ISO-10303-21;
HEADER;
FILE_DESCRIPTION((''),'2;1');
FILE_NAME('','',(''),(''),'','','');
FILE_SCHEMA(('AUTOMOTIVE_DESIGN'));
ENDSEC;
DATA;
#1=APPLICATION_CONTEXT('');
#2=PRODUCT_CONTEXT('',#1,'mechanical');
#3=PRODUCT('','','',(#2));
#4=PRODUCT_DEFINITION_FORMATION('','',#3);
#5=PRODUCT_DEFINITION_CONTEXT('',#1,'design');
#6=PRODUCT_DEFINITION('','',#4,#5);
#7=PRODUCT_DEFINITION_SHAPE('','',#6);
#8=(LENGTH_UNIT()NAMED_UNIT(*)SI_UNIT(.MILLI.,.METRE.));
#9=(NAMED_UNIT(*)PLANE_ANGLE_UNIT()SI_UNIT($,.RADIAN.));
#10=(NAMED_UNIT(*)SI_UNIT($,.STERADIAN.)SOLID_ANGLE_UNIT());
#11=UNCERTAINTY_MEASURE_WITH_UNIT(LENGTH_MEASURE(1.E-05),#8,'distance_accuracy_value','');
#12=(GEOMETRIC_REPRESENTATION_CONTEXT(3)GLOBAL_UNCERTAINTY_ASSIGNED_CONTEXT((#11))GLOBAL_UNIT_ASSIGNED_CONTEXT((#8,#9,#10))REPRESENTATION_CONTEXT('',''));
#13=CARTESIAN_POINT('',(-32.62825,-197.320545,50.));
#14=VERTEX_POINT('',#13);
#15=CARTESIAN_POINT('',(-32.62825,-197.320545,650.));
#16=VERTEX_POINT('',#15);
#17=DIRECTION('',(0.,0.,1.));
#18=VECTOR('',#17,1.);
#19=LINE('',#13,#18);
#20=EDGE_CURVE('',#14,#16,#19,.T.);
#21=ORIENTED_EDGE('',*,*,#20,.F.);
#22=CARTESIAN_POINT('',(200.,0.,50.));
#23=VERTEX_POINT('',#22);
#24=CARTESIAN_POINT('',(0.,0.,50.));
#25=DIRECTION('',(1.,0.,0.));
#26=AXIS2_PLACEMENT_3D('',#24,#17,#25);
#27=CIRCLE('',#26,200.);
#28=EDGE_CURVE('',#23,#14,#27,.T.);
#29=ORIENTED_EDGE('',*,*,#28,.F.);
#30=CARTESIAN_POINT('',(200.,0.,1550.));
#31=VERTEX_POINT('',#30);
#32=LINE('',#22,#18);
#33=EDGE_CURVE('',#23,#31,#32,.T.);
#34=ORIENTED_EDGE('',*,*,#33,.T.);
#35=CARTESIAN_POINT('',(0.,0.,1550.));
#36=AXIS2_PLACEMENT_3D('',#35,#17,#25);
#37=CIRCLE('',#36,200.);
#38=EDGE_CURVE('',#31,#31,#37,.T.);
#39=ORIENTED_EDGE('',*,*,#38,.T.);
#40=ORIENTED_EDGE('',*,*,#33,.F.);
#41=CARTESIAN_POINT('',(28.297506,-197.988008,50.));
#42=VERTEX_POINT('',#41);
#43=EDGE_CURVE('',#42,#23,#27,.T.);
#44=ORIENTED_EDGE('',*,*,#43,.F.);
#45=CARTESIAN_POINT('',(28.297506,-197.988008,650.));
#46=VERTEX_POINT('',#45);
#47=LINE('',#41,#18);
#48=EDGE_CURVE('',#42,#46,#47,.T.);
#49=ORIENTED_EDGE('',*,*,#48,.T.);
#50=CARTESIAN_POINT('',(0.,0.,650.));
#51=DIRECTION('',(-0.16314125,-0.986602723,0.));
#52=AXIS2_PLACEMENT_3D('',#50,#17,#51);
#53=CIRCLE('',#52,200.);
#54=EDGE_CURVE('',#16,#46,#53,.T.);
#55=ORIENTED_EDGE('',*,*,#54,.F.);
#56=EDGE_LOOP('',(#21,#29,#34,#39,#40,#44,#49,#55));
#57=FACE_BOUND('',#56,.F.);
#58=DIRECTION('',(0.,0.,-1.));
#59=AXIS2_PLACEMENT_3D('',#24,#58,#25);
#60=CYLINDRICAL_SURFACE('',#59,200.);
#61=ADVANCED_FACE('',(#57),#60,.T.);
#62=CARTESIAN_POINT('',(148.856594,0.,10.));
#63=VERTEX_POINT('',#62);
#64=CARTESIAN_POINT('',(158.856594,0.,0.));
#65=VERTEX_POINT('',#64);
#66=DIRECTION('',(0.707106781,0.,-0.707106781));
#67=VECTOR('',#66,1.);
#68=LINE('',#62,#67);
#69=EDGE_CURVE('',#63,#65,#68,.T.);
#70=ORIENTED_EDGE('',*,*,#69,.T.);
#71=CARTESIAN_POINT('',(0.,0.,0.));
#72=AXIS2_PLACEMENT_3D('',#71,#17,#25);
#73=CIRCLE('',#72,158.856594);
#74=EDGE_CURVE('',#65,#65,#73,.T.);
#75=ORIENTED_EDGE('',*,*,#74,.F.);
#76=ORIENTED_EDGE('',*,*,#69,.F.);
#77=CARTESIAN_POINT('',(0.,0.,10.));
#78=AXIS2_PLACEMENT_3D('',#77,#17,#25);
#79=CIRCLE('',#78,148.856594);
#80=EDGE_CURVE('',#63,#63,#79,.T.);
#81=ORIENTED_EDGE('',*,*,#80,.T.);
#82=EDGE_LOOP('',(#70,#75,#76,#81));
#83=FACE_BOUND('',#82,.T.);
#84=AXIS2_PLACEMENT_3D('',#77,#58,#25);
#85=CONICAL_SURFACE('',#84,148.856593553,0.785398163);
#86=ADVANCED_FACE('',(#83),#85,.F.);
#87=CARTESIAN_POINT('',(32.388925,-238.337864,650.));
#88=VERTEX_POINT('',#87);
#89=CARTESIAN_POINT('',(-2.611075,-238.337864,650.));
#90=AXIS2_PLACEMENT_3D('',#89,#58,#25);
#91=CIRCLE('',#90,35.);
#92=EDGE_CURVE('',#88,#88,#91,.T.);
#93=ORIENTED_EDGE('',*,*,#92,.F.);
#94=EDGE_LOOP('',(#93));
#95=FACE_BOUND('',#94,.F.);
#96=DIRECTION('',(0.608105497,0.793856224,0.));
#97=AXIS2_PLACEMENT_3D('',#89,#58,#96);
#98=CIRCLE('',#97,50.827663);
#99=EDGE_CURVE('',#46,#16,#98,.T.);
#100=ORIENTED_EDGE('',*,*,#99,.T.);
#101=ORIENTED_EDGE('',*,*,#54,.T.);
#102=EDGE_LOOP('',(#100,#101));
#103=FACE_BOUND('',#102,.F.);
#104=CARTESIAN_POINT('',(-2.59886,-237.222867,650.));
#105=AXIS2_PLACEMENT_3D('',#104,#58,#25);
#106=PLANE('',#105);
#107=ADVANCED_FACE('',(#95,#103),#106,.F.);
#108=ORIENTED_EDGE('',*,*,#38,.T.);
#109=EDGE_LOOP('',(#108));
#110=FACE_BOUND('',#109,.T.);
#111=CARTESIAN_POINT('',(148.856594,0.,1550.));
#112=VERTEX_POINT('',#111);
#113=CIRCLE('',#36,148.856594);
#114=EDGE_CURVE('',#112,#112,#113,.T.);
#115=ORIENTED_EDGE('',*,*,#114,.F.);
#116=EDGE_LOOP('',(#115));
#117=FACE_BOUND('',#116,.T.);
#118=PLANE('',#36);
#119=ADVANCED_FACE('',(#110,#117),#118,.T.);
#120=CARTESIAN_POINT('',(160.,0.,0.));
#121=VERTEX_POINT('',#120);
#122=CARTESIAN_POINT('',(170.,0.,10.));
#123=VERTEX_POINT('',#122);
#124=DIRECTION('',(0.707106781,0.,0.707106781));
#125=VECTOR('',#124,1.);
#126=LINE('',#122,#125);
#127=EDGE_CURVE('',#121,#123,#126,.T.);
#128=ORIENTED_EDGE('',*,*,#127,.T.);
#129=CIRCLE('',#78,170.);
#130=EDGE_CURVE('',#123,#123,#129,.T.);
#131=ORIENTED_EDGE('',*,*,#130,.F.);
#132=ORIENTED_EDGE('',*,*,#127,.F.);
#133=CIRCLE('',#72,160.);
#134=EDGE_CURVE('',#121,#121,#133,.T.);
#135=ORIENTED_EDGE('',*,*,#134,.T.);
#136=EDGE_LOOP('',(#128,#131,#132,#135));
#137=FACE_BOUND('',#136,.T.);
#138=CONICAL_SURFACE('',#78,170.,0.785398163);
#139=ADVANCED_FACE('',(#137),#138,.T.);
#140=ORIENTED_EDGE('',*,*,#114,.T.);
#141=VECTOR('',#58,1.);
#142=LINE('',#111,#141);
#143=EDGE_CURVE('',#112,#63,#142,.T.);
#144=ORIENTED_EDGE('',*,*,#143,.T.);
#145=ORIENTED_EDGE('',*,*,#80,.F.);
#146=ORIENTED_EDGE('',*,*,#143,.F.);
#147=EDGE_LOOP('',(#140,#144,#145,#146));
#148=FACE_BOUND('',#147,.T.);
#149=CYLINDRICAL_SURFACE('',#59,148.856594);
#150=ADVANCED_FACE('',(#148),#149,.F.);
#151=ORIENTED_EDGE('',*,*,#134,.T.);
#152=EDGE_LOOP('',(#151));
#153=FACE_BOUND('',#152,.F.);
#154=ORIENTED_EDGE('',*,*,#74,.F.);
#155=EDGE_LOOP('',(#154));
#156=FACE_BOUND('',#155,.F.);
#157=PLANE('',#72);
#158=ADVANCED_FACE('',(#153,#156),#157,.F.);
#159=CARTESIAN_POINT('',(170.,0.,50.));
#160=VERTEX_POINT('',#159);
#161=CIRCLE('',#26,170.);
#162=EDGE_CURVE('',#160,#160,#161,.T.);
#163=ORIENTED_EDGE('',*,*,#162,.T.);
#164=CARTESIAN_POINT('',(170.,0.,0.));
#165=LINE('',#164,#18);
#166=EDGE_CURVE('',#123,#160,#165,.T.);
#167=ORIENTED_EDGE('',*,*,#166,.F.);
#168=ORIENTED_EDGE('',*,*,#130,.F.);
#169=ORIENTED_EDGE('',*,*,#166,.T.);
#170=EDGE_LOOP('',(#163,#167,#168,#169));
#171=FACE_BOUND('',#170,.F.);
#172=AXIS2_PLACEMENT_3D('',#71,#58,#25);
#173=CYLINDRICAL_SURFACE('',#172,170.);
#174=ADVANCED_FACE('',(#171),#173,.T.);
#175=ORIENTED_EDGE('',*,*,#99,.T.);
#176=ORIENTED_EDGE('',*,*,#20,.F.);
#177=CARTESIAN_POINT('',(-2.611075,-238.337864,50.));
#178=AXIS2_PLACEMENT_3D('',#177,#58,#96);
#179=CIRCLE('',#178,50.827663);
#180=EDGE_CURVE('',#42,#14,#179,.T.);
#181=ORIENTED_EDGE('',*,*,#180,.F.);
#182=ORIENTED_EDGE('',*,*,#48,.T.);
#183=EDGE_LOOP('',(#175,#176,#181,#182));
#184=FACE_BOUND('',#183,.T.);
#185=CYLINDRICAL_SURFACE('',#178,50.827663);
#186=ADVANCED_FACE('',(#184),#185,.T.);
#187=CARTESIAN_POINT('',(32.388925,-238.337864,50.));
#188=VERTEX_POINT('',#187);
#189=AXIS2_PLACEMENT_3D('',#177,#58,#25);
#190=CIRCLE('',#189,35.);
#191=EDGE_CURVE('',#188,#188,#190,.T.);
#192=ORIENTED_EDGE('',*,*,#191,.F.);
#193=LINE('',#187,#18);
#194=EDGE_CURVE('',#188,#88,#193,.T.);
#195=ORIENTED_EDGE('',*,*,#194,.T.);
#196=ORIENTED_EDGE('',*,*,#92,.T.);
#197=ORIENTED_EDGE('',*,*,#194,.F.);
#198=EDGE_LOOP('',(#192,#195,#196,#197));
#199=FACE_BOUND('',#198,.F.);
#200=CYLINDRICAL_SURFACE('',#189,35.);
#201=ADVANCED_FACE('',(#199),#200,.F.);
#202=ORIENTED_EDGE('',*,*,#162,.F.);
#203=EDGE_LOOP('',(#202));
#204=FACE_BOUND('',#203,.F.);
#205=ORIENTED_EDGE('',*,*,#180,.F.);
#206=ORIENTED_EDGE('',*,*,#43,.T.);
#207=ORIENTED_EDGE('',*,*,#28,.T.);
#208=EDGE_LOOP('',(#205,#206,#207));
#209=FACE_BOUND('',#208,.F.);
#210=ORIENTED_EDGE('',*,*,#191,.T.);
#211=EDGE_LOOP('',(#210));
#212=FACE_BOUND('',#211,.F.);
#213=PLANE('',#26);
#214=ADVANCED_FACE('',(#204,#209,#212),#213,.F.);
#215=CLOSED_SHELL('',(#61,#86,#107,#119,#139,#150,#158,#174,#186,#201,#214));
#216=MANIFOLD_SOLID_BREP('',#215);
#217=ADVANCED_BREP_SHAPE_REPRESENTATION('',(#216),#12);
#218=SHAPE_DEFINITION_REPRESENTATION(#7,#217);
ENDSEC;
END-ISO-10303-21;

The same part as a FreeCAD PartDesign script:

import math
import FreeCAD as App
import Part
import Sketcher
Q = App.Units.Quantity


def edges_at(feature, points):
    """Names of the edges that pass closest to the given points."""
    edges = feature.Shape.Edges
    near = lambda p: min(range(len(edges)), key=lambda i: edges[i].distToShape(Part.Vertex(*p))[0])
    return sorted({f"Edge{near(p) + 1}" for p in points})

doc = App.newDocument("Part")
body = doc.addObject("PartDesign::Body", "Body")

sketch1 = body.newObject("Sketcher::SketchObject", "Sketch")
sketch1.AttachmentSupport = (doc.getObject("XY_Plane"), [""])
sketch1.MapMode = "FlatFace"
sketch1.addGeometry(Part.Circle(App.Vector(0, 0, 0), App.Vector(0, 0, 1), 170), False)
sketch1.addGeometry(Part.Circle(App.Vector(0, 0, 0), App.Vector(0, 0, 1), 149), False)
sketch1.addConstraint(Sketcher.Constraint("Coincident", 0, 3, -1, 1))
sketch1.addConstraint(Sketcher.Constraint("Coincident", 1, 3, -1, 1))
sketch1.addConstraint(Sketcher.Constraint("Diameter", 0, Q("340 mm")))
sketch1.addConstraint(Sketcher.Constraint("Diameter", 1, Q("297.713187 mm")))
pad1 = body.newObject("PartDesign::Pad", "Pad")
pad1.Profile = sketch1
pad1.Length = 50

sketch2 = body.newObject("Sketcher::SketchObject", "Sketch001")
sketch2.AttachmentSupport = (doc.getObject("XY_Plane"), [""])
sketch2.MapMode = "FlatFace"
sketch2.AttachmentOffset = App.Placement(App.Vector(0, 0, 50), App.Rotation())
sketch2.addGeometry(Part.Circle(App.Vector(0, 0, 0), App.Vector(0, 0, 1), 200), False)
sketch2.addGeometry(Part.Circle(App.Vector(0, 0, 0), App.Vector(0, 0, 1), 149), False)
sketch2.addConstraint(Sketcher.Constraint("Coincident", 0, 3, -1, 1))
sketch2.addConstraint(Sketcher.Constraint("Coincident", 1, 3, -1, 1))
sketch2.addConstraint(Sketcher.Constraint("Diameter", 0, Q("400 mm")))
sketch2.addConstraint(Sketcher.Constraint("Diameter", 1, Q("297.713187 mm")))
pad2 = body.newObject("PartDesign::Pad", "Pad001")
pad2.Profile = sketch2
pad2.Length = 1500
doc.recompute()

chamfer = body.newObject("PartDesign::Chamfer", "Chamfer")
chamfer.Base = (pad2, edges_at(pad2, [(-170, 0, 0), (-148.857, 0, 0)]))
chamfer.Size = 10

sketch3 = body.newObject("Sketcher::SketchObject", "Sketch002")
sketch3.AttachmentSupport = (doc.getObject("XY_Plane"), [""])
sketch3.MapMode = "FlatFace"
sketch3.AttachmentOffset = App.Placement(App.Vector(0, 0, 50), App.Rotation())
sketch3.addGeometry(Part.ArcOfCircle(Part.Circle(App.Vector(0, 0, 0), App.Vector(0, 0, 1), 200), math.radians(-99.39), math.radians(-81.87)), False)
sketch3.addGeometry(Part.ArcOfCircle(Part.Circle(App.Vector(-3, -238, 0), App.Vector(0, 0, 1), 51), math.radians(126), math.radians(413)), False)
sketch3.addConstraint(Sketcher.Constraint("Coincident", 0, 1, 1, 1))
sketch3.addConstraint(Sketcher.Constraint("Coincident", 1, 2, 0, 2))
sketch3.addConstraint(Sketcher.Constraint("Coincident", 0, 3, -1, 1))
sketch3.addConstraint(Sketcher.Constraint("Radius", 0, Q("200 mm")))
sketch3.addConstraint(Sketcher.Constraint("Radius", 1, Q("50.827663 mm")))
sketch3.addConstraint(Sketcher.Constraint("DistanceX", 0, 1, -1, 1, Q("32.62825 mm")))
sketch3.addConstraint(Sketcher.Constraint("DistanceY", 1, 3, 0, 1, Q("41.017319 mm")))
pad3 = body.newObject("PartDesign::Pad", "Pad002")
pad3.Profile = sketch3
pad3.Length = 600

sketch4 = body.newObject("Sketcher::SketchObject", "Sketch003")
sketch4.AttachmentSupport = (doc.getObject("XY_Plane"), [""])
sketch4.MapMode = "FlatFace"
sketch4.AttachmentOffset = App.Placement(App.Vector(0, 0, 50), App.Rotation())
sketch4.addGeometry(Part.Circle(App.Vector(-3, -238, 0), App.Vector(0, 0, 1), 35), False)
sketch4.addConstraint(Sketcher.Constraint("Diameter", 0, Q("70 mm")))
sketch4.addConstraint(Sketcher.Constraint("DistanceX", 0, 3, -1, 1, Q("2.611075 mm")))
sketch4.addConstraint(Sketcher.Constraint("DistanceY", 0, 3, -1, 1, Q("238.337864 mm")))
pocket1 = body.newObject("PartDesign::Pocket", "Pocket")
pocket1.Profile = sketch4
pocket1.Length = 600
pocket1.Reversed = True

doc.recompute()
